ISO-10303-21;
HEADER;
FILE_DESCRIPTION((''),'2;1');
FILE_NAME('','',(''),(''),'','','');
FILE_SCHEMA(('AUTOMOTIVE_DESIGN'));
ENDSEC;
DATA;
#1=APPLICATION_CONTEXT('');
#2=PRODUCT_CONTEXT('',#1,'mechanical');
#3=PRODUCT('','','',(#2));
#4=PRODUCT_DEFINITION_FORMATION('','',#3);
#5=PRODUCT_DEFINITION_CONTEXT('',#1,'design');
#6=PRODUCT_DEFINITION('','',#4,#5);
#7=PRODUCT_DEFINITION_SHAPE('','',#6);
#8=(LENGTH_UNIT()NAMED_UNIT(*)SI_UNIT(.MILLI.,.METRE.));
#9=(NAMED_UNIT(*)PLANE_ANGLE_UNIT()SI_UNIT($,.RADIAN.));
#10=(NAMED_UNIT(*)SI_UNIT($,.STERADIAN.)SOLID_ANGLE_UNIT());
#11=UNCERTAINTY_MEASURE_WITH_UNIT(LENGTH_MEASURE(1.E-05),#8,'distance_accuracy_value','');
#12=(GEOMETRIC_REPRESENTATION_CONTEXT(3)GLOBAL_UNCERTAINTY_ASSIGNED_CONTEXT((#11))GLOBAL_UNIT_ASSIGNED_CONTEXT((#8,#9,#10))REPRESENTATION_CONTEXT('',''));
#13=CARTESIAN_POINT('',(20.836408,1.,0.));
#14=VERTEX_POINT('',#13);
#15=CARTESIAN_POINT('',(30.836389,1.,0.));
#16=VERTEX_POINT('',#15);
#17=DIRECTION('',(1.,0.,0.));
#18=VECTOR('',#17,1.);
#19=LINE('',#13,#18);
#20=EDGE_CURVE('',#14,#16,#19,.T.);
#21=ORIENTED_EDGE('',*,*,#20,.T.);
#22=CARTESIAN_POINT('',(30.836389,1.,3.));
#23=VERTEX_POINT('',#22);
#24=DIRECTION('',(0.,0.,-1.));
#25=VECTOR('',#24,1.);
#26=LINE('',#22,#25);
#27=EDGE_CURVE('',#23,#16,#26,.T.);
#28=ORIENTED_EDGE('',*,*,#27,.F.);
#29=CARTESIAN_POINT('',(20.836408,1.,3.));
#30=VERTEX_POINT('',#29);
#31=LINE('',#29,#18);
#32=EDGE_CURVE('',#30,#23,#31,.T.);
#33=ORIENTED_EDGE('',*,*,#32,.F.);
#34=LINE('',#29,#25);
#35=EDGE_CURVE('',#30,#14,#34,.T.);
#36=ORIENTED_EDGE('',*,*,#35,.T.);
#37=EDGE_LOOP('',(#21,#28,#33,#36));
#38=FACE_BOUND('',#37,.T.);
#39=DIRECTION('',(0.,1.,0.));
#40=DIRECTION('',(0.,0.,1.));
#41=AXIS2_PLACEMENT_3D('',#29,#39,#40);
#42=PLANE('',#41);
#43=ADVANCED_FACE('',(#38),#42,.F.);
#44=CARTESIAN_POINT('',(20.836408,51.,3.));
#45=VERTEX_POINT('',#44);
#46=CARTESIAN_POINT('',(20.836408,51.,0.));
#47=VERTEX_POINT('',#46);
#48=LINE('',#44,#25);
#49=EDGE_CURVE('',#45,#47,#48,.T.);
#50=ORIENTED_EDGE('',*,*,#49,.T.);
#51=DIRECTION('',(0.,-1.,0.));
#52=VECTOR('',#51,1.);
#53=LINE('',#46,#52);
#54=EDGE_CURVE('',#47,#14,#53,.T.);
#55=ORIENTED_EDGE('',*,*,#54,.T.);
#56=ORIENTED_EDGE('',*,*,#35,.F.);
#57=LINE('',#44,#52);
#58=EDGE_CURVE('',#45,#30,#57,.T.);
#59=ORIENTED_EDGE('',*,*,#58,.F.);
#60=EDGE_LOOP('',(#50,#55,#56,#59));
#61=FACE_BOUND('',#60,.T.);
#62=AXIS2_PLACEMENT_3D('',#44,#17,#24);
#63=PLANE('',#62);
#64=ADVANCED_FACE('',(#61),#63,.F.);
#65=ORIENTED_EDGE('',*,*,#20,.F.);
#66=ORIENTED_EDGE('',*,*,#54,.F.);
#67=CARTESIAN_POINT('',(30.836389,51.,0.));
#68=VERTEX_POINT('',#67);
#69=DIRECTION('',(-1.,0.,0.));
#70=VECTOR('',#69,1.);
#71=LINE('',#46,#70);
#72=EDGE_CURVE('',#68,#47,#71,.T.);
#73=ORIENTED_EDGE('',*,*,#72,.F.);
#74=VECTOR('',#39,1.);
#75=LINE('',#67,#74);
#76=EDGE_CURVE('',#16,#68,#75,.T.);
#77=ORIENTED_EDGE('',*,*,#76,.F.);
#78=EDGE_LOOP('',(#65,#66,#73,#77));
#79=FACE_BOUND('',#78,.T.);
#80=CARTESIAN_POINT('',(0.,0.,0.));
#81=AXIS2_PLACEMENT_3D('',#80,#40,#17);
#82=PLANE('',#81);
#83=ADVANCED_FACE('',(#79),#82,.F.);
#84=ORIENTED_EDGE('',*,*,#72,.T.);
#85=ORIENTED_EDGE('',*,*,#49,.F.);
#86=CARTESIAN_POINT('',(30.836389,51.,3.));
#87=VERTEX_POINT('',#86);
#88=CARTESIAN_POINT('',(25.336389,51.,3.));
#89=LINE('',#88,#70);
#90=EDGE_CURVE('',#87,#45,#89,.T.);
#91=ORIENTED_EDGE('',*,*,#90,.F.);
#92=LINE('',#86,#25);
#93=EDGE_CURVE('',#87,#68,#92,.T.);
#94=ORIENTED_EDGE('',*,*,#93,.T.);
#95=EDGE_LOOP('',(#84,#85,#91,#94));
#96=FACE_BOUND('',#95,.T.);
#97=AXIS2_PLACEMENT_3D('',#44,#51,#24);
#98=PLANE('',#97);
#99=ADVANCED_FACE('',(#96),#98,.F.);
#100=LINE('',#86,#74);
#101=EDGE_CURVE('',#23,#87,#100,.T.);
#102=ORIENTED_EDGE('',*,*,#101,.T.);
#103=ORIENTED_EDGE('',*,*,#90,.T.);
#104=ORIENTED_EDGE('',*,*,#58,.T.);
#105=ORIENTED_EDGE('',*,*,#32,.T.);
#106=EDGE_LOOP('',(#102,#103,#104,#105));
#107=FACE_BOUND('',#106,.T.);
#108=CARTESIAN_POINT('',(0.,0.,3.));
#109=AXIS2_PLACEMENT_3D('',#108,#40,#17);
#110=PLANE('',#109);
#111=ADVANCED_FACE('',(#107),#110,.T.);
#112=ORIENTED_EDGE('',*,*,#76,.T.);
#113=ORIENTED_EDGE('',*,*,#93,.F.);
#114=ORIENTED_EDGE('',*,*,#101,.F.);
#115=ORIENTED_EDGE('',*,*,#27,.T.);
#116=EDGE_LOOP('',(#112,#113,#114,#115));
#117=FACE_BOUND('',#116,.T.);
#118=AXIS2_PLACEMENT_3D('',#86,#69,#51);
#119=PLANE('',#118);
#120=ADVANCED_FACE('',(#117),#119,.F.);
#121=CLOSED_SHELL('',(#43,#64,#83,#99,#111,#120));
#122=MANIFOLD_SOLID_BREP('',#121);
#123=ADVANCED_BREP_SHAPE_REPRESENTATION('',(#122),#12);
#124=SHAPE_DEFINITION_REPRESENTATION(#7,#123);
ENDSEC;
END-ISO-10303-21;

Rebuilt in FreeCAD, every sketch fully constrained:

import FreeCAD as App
import Part
import Sketcher

doc = App.newDocument("Part")
body = doc.addObject("PartDesign::Body", "Body")

# Sketch on XY plane
sketch1 = body.newObject("Sketcher::SketchObject", "Sketch")
sketch1.AttachmentSupport = (doc.getObject("XY_Plane"), [""])
sketch1.MapMode = "FlatFace"
sketch1.addGeometry([
    Part.LineSegment(App.Vector(21, 1, 0), App.Vector(31, 1, 0)),
    Part.LineSegment(App.Vector(31, 1, 0), App.Vector(31, 51, 0)),
    Part.LineSegment(App.Vector(31, 51, 0), App.Vector(21, 51, 0)),
    Part.LineSegment(App.Vector(21, 51, 0), App.Vector(21, 1, 0)),
], False)
sketch1.addConstraint([
    Sketcher.Constraint("Coincident", 0, 2, 1, 1),
    Sketcher.Constraint("Coincident", 1, 2, 2, 1),
    Sketcher.Constraint("Coincident", 2, 2, 3, 1),
    Sketcher.Constraint("Coincident", 3, 2, 0, 1),
    Sketcher.Constraint("Horizontal", 0),
    Sketcher.Constraint("Vertical", 1),
    Sketcher.Constraint("Horizontal", 2),
    Sketcher.Constraint("Vertical", 3),
    Sketcher.Constraint("DistanceY", 1, 1, 1, 2, 50.0),
    Sketcher.Constraint("DistanceY", -1, 1, 0, 2, 1.0),
    Sketcher.Constraint("DistanceX", 0, 1, 0, 2, 9.999981),
    Sketcher.Constraint("DistanceX", -1, 1, 0, 2, 30.836389),
])
pad1 = body.newObject("PartDesign::Pad", "Pad")
pad1.Profile = sketch1
pad1.Length = 3

doc.recompute()
